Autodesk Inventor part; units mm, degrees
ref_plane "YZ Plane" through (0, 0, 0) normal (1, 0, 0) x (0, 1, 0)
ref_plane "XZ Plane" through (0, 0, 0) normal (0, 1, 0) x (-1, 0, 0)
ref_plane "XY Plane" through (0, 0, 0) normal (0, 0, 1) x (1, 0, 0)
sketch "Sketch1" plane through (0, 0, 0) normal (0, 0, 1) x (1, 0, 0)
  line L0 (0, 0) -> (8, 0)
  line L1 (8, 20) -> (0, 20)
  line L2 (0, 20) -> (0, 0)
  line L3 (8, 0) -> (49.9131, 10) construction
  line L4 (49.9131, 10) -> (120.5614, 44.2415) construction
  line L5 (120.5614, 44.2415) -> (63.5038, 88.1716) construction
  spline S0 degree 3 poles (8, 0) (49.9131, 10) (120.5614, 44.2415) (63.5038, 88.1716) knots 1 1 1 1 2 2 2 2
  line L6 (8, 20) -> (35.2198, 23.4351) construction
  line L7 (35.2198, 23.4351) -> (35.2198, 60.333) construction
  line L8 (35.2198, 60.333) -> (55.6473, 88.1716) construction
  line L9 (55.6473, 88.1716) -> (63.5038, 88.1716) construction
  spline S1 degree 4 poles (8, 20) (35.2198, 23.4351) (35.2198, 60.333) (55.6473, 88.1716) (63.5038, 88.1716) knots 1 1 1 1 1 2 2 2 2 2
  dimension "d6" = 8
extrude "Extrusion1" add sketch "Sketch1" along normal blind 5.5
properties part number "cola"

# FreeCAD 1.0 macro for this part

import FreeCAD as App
import Part
import Sketcher

doc = App.newDocument("Part")
body = doc.addObject("PartDesign::Body", "Body")

# Sketch on XY plane
sketch1 = doc.addObject("Sketcher::SketchObject", "Sketch")
body.addObject(sketch1)
sketch1.AttachmentSupport = (doc.XY_Plane, [""])
sketch1.MapMode = "FlatFace"
sketch1.addGeometry(Part.LineSegment(App.Vector(0, 20, 0), App.Vector(0, 0, 0)), False)
sketch1.addGeometry(Part.LineSegment(App.Vector(0, 0, 0), App.Vector(8, 0, 0)), False)
sketch1.addGeometry(Part.BSplineCurve([App.Vector(8, 0, 0), App.Vector(49.9131, 10, 0), App.Vector(120.5614, 44.2415, 0), App.Vector(63.5038, 88.1716, 0)], [4, 4], [1, 2], False, 3, [1, 1, 1, 1], False), False)
sketch1.addGeometry(Part.BSplineCurve([App.Vector(8, 20, 0), App.Vector(35.2198, 23.4351, 0), App.Vector(35.2198, 60.333, 0), App.Vector(55.6473, 88.1716, 0), App.Vector(63.5038, 88.1716, 0)], [5, 5], [1, 2], False, 4, [1, 1, 1, 1, 1], False), False)
sketch1.addGeometry(Part.LineSegment(App.Vector(8, 20, 0), App.Vector(0, 20, 0)), False)
sketch1.addConstraint(Sketcher.Constraint("Block", 2))
sketch1.addConstraint(Sketcher.Constraint("Block", 3))
sketch1.addConstraint(Sketcher.Constraint("Coincident", 0, 2, 1, 1))
sketch1.addConstraint(Sketcher.Constraint("Coincident", 1, 2, 2, 1))
sketch1.addConstraint(Sketcher.Constraint("Coincident", 3, 1, 4, 1))
sketch1.addConstraint(Sketcher.Constraint("Coincident", 4, 2, 0, 1))
sketch1.addConstraint(Sketcher.Constraint("Vertical", 0))
sketch1.addConstraint(Sketcher.Constraint("Horizontal", 1))
sketch1.addConstraint(Sketcher.Constraint("Horizontal", 4))
sketch1.addConstraint(Sketcher.Constraint("PointOnObject", 4, 2, -2))
pad1 = doc.addObject("PartDesign::Pad", "Pad")
body.addObject(pad1)
pad1.Profile = sketch1
pad1.Length = 5.5

doc.recompute()
